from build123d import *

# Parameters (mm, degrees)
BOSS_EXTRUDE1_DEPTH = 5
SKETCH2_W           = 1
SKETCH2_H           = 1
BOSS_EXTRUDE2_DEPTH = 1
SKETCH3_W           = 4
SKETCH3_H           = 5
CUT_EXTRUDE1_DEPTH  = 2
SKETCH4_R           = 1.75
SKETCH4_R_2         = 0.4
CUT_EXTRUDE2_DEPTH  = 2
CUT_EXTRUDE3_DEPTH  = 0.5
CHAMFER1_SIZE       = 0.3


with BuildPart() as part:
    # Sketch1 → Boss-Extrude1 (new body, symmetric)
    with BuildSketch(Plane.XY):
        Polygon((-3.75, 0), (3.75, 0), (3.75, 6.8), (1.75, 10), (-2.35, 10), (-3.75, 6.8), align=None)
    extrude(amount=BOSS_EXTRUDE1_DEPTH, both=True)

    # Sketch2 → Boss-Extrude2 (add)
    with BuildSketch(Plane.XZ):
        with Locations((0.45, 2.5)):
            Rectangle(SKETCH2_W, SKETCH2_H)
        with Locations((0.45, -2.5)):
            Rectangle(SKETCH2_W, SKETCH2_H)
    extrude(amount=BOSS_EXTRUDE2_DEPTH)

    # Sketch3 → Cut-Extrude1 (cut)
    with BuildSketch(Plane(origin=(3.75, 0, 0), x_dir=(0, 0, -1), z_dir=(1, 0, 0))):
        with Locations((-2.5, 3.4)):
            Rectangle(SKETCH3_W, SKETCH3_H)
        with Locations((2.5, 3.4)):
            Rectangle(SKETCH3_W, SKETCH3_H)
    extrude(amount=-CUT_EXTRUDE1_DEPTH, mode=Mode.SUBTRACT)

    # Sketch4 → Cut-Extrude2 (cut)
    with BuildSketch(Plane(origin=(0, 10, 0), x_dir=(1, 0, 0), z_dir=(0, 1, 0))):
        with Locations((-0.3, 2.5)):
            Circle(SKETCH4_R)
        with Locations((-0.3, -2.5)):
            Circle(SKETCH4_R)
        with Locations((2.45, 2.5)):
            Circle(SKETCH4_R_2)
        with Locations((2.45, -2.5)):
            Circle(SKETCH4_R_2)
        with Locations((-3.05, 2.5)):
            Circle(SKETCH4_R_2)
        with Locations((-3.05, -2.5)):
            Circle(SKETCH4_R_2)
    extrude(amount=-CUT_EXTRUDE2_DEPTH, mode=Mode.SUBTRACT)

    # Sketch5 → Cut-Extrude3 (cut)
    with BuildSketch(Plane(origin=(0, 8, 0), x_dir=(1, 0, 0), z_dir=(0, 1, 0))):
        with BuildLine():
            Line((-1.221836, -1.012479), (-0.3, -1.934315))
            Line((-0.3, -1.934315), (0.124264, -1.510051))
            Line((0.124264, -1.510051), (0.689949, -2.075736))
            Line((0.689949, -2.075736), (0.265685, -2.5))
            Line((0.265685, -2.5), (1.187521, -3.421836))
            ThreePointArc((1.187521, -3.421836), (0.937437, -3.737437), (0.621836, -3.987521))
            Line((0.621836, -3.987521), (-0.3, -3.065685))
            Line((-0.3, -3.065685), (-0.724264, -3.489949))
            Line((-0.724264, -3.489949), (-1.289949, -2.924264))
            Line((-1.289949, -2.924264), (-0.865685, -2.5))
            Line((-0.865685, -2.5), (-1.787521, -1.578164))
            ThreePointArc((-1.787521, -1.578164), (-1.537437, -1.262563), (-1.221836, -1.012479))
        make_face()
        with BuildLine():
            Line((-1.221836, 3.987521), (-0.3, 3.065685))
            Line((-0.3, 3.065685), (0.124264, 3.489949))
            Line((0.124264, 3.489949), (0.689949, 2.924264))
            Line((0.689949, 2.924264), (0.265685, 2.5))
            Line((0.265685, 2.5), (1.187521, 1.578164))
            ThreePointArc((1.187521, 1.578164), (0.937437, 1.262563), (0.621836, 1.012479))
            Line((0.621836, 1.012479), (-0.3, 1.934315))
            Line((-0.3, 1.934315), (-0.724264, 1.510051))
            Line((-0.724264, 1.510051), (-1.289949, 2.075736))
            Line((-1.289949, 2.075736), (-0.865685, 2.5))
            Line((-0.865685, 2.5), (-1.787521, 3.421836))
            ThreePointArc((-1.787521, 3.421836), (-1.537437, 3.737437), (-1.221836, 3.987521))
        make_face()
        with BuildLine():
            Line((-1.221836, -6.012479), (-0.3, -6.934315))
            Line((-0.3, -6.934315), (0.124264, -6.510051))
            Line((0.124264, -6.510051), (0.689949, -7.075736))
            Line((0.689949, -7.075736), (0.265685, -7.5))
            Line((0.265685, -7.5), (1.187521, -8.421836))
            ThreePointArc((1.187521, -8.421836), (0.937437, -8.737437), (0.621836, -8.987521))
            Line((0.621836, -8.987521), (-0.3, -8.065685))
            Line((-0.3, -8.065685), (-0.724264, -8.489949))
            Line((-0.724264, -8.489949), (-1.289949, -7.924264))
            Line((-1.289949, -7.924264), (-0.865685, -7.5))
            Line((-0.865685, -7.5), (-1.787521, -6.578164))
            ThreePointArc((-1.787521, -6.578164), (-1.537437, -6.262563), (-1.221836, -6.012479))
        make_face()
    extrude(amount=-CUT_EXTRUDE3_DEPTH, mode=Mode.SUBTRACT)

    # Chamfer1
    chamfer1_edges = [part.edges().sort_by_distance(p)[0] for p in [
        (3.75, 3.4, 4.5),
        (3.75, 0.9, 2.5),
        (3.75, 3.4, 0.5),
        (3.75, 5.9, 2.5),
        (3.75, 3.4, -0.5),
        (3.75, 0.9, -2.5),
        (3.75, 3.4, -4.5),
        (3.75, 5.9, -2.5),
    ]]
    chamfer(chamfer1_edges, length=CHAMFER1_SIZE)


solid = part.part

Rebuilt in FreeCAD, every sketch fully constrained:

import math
import FreeCAD as App
import Part
import Sketcher
from FreeCAD import Vector
Q = App.Units.Quantity


def edges_at(feature, points):
    """Names of the edges that pass closest to the given points."""
    edges = feature.Shape.Edges
    near = lambda p: min(range(len(edges)), key=lambda i: edges[i].distToShape(Part.Vertex(*p))[0])
    return sorted({f"Edge{near(p) + 1}" for p in points})


def add_polygon(sketch, points):
    """Adds a closed chain of lines whose ends are joined by coincident constraints."""
    first, n = sketch.GeometryCount, len(points)
    for a, b in zip(points, points[1:] + points[:1]):
        sketch.addGeometry(Part.LineSegment(App.Vector(*a, 0), App.Vector(*b, 0)), False)
    for i in range(n):
        sketch.addConstraint(Sketcher.Constraint("Coincident", first + i, 2, first + (i + 1) % n, 1))

doc = App.newDocument("Part")
params = doc.addObject("Spreadsheet::Sheet", "Params")
for row, (alias, value) in enumerate([
    ("sketch1_width", "7.5 mm"),
    ("sketch1_width2", "4.1 mm"),
    ("sketch1_height", "6.8 mm"),
    ("pad1_length", "10 mm"),
    ("sketch2_width", "1 mm"),
    ("pad2_length", "1 mm"),
    ("sketch3_width", "5 mm"),
    ("sketch3_height", "4 mm"),
    ("pocket1_length", "2 mm"),
    ("sketch4_diameter", "3.5 mm"),
    ("sketch4_diameter2", "0.8 mm"),
    ("pocket2_length", "2 mm"),
    ("sketch5_length", "0.6 mm"),
    ("sketch5_length2", "0.799999 mm"),
    ("pocket3_length", "0.5 mm"),
    ("chamfer_size", "0.3 mm"),
], start=1):
    params.set(f"A{row}", alias)
    params.set(f"B{row}", "=" + value)
    params.setAlias(f"B{row}", alias)

body = doc.addObject("PartDesign::Body", "Body")

# Sketch on XY plane
sketch1 = body.newObject("Sketcher::SketchObject", "Sketch")
sketch1.AttachmentSupport = (doc.getObject("XY_Plane"), [""])
sketch1.MapMode = "FlatFace"
add_polygon(sketch1, [(-3.8, 0), (3.8, 0), (3.8, 6.8), (1.8, 10), (-2.4, 10), (-3.8, 6.8)])  # lines 0-5
sketch1.addConstraint([
    Sketcher.Constraint("Horizontal", 0),
    Sketcher.Constraint("Vertical", 1),
    Sketcher.Constraint("Horizontal", 3),
    Sketcher.Constraint("Vertical", 5),
    Sketcher.Constraint("Symmetric", 0, 2, 5, 2, -1, 1),
    Sketcher.Constraint("Horizontal", 1, 2, 4, 2),
    Sketcher.Constraint("DistanceX", 0, 1, 0, 2, Q("7.5 mm")),
    Sketcher.Constraint("DistanceX", 3, 2, 3, 1, Q("4.1 mm")),
    Sketcher.Constraint("DistanceY", 1, 1, 1, 2, Q("6.8 mm")),
    Sketcher.Constraint("DistanceY", -1, 1, 2, 2, Q("10 mm")),
    Sketcher.Constraint("DistanceX", 2, 2, 1, 2, Q("2 mm")),
])
sketch1.setExpression("Constraints[12]", "Params.sketch1_width")
sketch1.setExpression("Constraints[13]", "Params.sketch1_width2")
sketch1.setExpression("Constraints[14]", "Params.sketch1_height")
pad1 = body.newObject("PartDesign::Pad", "Pad")
pad1.Profile = sketch1
pad1.setExpression("Length", "Params.pad1_length")
pad1.Midplane = True

# Sketch on XZ plane
sketch2 = body.newObject("Sketcher::SketchObject", "Sketch001")
sketch2.AttachmentSupport = (doc.getObject("XZ_Plane"), [""])
sketch2.MapMode = "FlatFace"
add_polygon(sketch2, [(-0.1, 3), (-0.1, 2), (0.9, 2), (0.9, 3)])  # lines 0-3
add_polygon(sketch2, [(-0.1, -2), (-0.1, -3), (0.9, -3), (0.9, -2)])  # lines 4-7
sketch2.addConstraint([
    Sketcher.Constraint("Vertical", 0),
    Sketcher.Constraint("Horizontal", 1),
    Sketcher.Constraint("Vertical", 2),
    Sketcher.Constraint("Horizontal", 3),
    Sketcher.Constraint("Vertical", 4),
    Sketcher.Constraint("Horizontal", 5),
    Sketcher.Constraint("Vertical", 6),
    Sketcher.Constraint("Horizontal", 7),
    Sketcher.Constraint("Symmetric", 3, 2, 4, 2, -1),
    Sketcher.Constraint("Symmetric", 1, 2, 6, 2, -1),
    Sketcher.Constraint("Equal", 7, 0),
    Sketcher.Constraint("DistanceX", 1, 1, 1, 2, Q("1 mm")),
    Sketcher.Constraint("DistanceY", -1, 1, 0, 2, Q("2 mm")),
    Sketcher.Constraint("DistanceX", 0, 2, -1, 1, Q("0.05 mm")),
])
sketch2.setExpression("Constraints[19]", "Params.sketch2_width")
pad2 = body.newObject("PartDesign::Pad", "Pad001")
pad2.Profile = sketch2
pad2.setExpression("Length", "Params.pad2_length")

# Sketch on YZ plane
sketch3 = body.newObject("Sketcher::SketchObject", "Sketch002")
sketch3.AttachmentSupport = (doc.getObject("YZ_Plane"), [""])
sketch3.MapMode = "FlatFace"
sketch3.AttachmentOffset = App.Placement(Vector(0, 0, 3.75), App.Rotation())
add_polygon(sketch3, [(5.9, 4.5), (0.9, 4.5), (0.9, 0.5), (5.9, 0.5)])  # lines 0-3
add_polygon(sketch3, [(5.9, -0.5), (0.9, -0.5), (0.9, -4.5), (5.9, -4.5)])  # lines 4-7
sketch3.addConstraint([
    Sketcher.Constraint("Horizontal", 0),
    Sketcher.Constraint("Vertical", 1),
    Sketcher.Constraint("Horizontal", 2),
    Sketcher.Constraint("Vertical", 3),
    Sketcher.Constraint("Horizontal", 4),
    Sketcher.Constraint("Vertical", 5),
    Sketcher.Constraint("Horizontal", 6),
    Sketcher.Constraint("Vertical", 7),
    Sketcher.Constraint("Symmetric", 1, 2, 4, 2, -1),
    Sketcher.Constraint("Symmetric", 3, 2, 6, 2, -1),
    Sketcher.Constraint("DistanceX", 0, 2, 0, 1, Q("5 mm")),
    Sketcher.Constraint("DistanceY", 1, 2, 1, 1, Q("4 mm")),
    Sketcher.Constraint("DistanceY", 4, 2, 1, 2, Q("1 mm")),
    Sketcher.Constraint("DistanceX", -1, 1, 0, 2, Q("0.9 mm")),
])
sketch3.setExpression("Constraints[18]", "Params.sketch3_width")
sketch3.setExpression("Constraints[19]", "Params.sketch3_height")
pocket1 = body.newObject("PartDesign::Pocket", "Pocket")
pocket1.Profile = sketch3
pocket1.setExpression("Length", "Params.pocket1_length")

# Sketch on XZ plane
sketch4 = body.newObject("Sketcher::SketchObject", "Sketch003")
sketch4.AttachmentSupport = (doc.getObject("XZ_Plane"), [""])
sketch4.MapMode = "FlatFace"
sketch4.AttachmentOffset = App.Placement(Vector(0, 0, -10), App.Rotation())
sketch4.addGeometry([
    Part.Circle(Vector(-0.3, -2.5, 0), Vector(0, 0, 1), 1.75),  # 0
    Part.Circle(Vector(-0.3, 2.5, 0), Vector(0, 0, 1), 1.75),  # 1
    Part.Circle(Vector(2.45, -2.5, 0), Vector(0, 0, 1), 0.4),  # 2
    Part.Circle(Vector(2.45, 2.5, 0), Vector(0, 0, 1), 0.4),  # 3
    Part.Circle(Vector(-3.05, -2.5, 0), Vector(0, 0, 1), 0.4),  # 4
    Part.Circle(Vector(-3.05, 2.5, 0), Vector(0, 0, 1), 0.4),  # 5
], False)
sketch4.addConstraint([
    Sketcher.Constraint("Equal", 0, 1),
    Sketcher.Constraint("Equal", 2, 3),
    Sketcher.Constraint("Equal", 3, 4),
    Sketcher.Constraint("Equal", 4, 5),
    Sketcher.Constraint("Symmetric", 0, 3, 1, 3, -1),
    Sketcher.Constraint("Symmetric", 2, 3, 3, 3, -1),
    Sketcher.Constraint("Symmetric", 4, 3, 5, 3, -1),
    Sketcher.Constraint("Horizontal", 0, 3, 2, 3),
    Sketcher.Constraint("Horizontal", 2, 3, 4, 3),
    Sketcher.Constraint("Diameter", 0, Q("3.5 mm")),
    Sketcher.Constraint("Diameter", 2, Q("0.8 mm")),
    Sketcher.Constraint("DistanceY", 0, 3, 1, 3, Q("5 mm")),
    Sketcher.Constraint("DistanceX", 0, 3, -1, 1, Q("0.3 mm")),
    Sketcher.Constraint("DistanceX", 4, 3, 2, 3, Q("5.5 mm")),
    Sketcher.Constraint("DistanceX", -1, 1, 2, 3, Q("2.45 mm")),
])
sketch4.setExpression("Constraints[9]", "Params.sketch4_diameter")
sketch4.setExpression("Constraints[10]", "Params.sketch4_diameter2")
pocket2 = body.newObject("PartDesign::Pocket", "Pocket001")
pocket2.Profile = sketch4
pocket2.setExpression("Length", "Params.pocket2_length")
pocket2.Reversed = True

# Sketch on XZ plane
sketch5 = body.newObject("Sketcher::SketchObject", "Sketch004")
sketch5.AttachmentSupport = (doc.getObject("XZ_Plane"), [""])
sketch5.MapMode = "FlatFace"
sketch5.AttachmentOffset = App.Placement(Vector(0, 0, -8), App.Rotation())
sketch5.addGeometry([
    Part.LineSegment(Vector(-0.3, 1.9, 0), Vector(-1.2, 1, 0)),  # 0
    Part.ArcOfCircle(Part.Circle(Vector(-0.3, 2.5, 0), Vector(0, 0, 1), 1.7), math.radians(-148), math.radians(-122)),  # 1
    Part.LineSegment(Vector(-1.8, 1.6, 0), Vector(-0.9, 2.5, 0)),  # 2
    Part.LineSegment(Vector(-0.9, 2.5, 0), Vector(-1.3, 2.9, 0)),  # 3
    Part.LineSegment(Vector(-1.3, 2.9, 0), Vector(-0.7, 3.5, 0)),  # 4
    Part.LineSegment(Vector(-0.7, 3.5, 0), Vector(-0.3, 3.1, 0)),  # 5
    Part.LineSegment(Vector(-0.3, 3.1, 0), Vector(0.6, 4, 0)),  # 6
    Part.ArcOfCircle(Part.Circle(Vector(-0.3, 2.5, 0), Vector(0, 0, 1), 1.7), math.radians(32), math.radians(58)),  # 7
    Part.LineSegment(Vector(1.2, 3.4, 0), Vector(0.3, 2.5, 0)),  # 8
    Part.LineSegment(Vector(0.3, 2.5, 0), Vector(0.7, 2.1, 0)),  # 9
    Part.LineSegment(Vector(0.7, 2.1, 0), Vector(0.1, 1.5, 0)),  # 10
    Part.LineSegment(Vector(0.1, 1.5, 0), Vector(-0.3, 1.9, 0)),  # 11
    Part.LineSegment(Vector(-0.3, -3.1, 0), Vector(-1.2, -4, 0)),  # 12
    Part.ArcOfCircle(Part.Circle(Vector(-0.3, -2.5, 0), Vector(0, 0, 1), 1.7), math.radians(-148), math.radians(-122)),  # 13
    Part.LineSegment(Vector(-1.8, -3.4, 0), Vector(-0.9, -2.5, 0)),  # 14
    Part.LineSegment(Vector(-0.9, -2.5, 0), Vector(-1.3, -2.1, 0)),  # 15
    Part.LineSegment(Vector(-1.3, -2.1, 0), Vector(-0.7, -1.5, 0)),  # 16
    Part.LineSegment(Vector(-0.7, -1.5, 0), Vector(-0.3, -1.9, 0)),  # 17
    Part.LineSegment(Vector(-0.3, -1.9, 0), Vector(0.6, -1, 0)),  # 18
    Part.ArcOfCircle(Part.Circle(Vector(-0.3, -2.5, 0), Vector(0, 0, 1), 1.7), math.radians(32), math.radians(58)),  # 19
    Part.LineSegment(Vector(1.2, -1.6, 0), Vector(0.3, -2.5, 0)),  # 20
    Part.LineSegment(Vector(0.3, -2.5, 0), Vector(0.7, -2.9, 0)),  # 21
    Part.LineSegment(Vector(0.7, -2.9, 0), Vector(0.1, -3.5, 0)),  # 22
    Part.LineSegment(Vector(0.1, -3.5, 0), Vector(-0.3, -3.1, 0)),  # 23
    Part.LineSegment(Vector(-0.3, 6.9, 0), Vector(-1.2, 6, 0)),  # 24
    Part.ArcOfCircle(Part.Circle(Vector(-0.3, 7.5, 0), Vector(0, 0, 1), 1.7), math.radians(-148), math.radians(-122)),  # 25
    Part.LineSegment(Vector(-1.8, 6.6, 0), Vector(-0.9, 7.5, 0)),  # 26
    Part.LineSegment(Vector(-0.9, 7.5, 0), Vector(-1.3, 7.9, 0)),  # 27
    Part.LineSegment(Vector(-1.3, 7.9, 0), Vector(-0.7, 8.5, 0)),  # 28
    Part.LineSegment(Vector(-0.7, 8.5, 0), Vector(-0.3, 8.1, 0)),  # 29
    Part.LineSegment(Vector(-0.3, 8.1, 0), Vector(0.6, 9, 0)),  # 30
    Part.ArcOfCircle(Part.Circle(Vector(-0.3, 7.5, 0), Vector(0, 0, 1), 1.7), math.radians(32), math.radians(58)),  # 31
    Part.LineSegment(Vector(1.2, 8.4, 0), Vector(0.3, 7.5, 0)),  # 32
    Part.LineSegment(Vector(0.3, 7.5, 0), Vector(0.7, 7.1, 0)),  # 33
    Part.LineSegment(Vector(0.7, 7.1, 0), Vector(0.1, 6.5, 0)),  # 34
    Part.LineSegment(Vector(0.1, 6.5, 0), Vector(-0.3, 6.9, 0)),  # 35
], False)
sketch5.addConstraint([
    Sketcher.Constraint("Coincident", 0, 2, 1, 2),
    Sketcher.Constraint("Coincident", 1, 1, 2, 1),
    Sketcher.Constraint("Coincident", 2, 2, 3, 1),
    Sketcher.Constraint("Coincident", 3, 2, 4, 1),
    Sketcher.Constraint("Coincident", 4, 2, 5, 1),
    Sketcher.Constraint("Coincident", 5, 2, 6, 1),
    Sketcher.Constraint("Coincident", 6, 2, 7, 2),
    Sketcher.Constraint("Coincident", 7, 1, 8, 1),
    Sketcher.Constraint("Coincident", 8, 2, 9, 1),
    Sketcher.Constraint("Coincident", 9, 2, 10, 1),
    Sketcher.Constraint("Coincident", 10, 2, 11, 1),
    Sketcher.Constraint("Coincident", 11, 2, 0, 1),
    Sketcher.Constraint("Coincident", 12, 2, 13, 2),
    Sketcher.Constraint("Coincident", 13, 1, 14, 1),
    Sketcher.Constraint("Coincident", 14, 2, 15, 1),
    Sketcher.Constraint("Coincident", 15, 2, 16, 1),
    Sketcher.Constraint("Coincident", 16, 2, 17, 1),
    Sketcher.Constraint("Coincident", 17, 2, 18, 1),
    Sketcher.Constraint("Coincident", 18, 2, 19, 2),
    Sketcher.Constraint("Coincident", 19, 1, 20, 1),
    Sketcher.Constraint("Coincident", 20, 2, 21, 1),
    Sketcher.Constraint("Coincident", 21, 2, 22, 1),
    Sketcher.Constraint("Coincident", 22, 2, 23, 1),
    Sketcher.Constraint("Coincident", 23, 2, 12, 1),
    Sketcher.Constraint("Coincident", 24, 2, 25, 2),
    Sketcher.Constraint("Coincident", 25, 1, 26, 1),
    Sketcher.Constraint("Coincident", 26, 2, 27, 1),
    Sketcher.Constraint("Coincident", 27, 2, 28, 1),
    Sketcher.Constraint("Coincident", 28, 2, 29, 1),
    Sketcher.Constraint("Coincident", 29, 2, 30, 1),
    Sketcher.Constraint("Coincident", 30, 2, 31, 2),
    Sketcher.Constraint("Coincident", 31, 1, 32, 1),
    Sketcher.Constraint("Coincident", 32, 2, 33, 1),
    Sketcher.Constraint("Coincident", 33, 2, 34, 1),
    Sketcher.Constraint("Coincident", 34, 2, 35, 1),
    Sketcher.Constraint("Coincident", 35, 2, 24, 1),
    Sketcher.Constraint("Coincident", 7, 3, 1, 3),
    Sketcher.Constraint("Coincident", 19, 3, 13, 3),
    Sketcher.Constraint("Coincident", 31, 3, 25, 3),
    Sketcher.Constraint("Equal", 1, 7),
    Sketcher.Constraint("Equal", 7, 13),
    Sketcher.Constraint("Equal", 13, 19),
    Sketcher.Constraint("Equal", 19, 25),
    Sketcher.Constraint("Equal", 25, 31),
    Sketcher.Constraint("Symmetric", 1, 3, 13, 3, -1),
    Sketcher.Constraint("Symmetric", 2, 2, 14, 2, -1),
    Sketcher.Constraint("Symmetric", 11, 2, 17, 2, -1),
    Sketcher.Constraint("Symmetric", 8, 2, 20, 2, -1),
    Sketcher.Constraint("Symmetric", 5, 2, 23, 2, -1),
    Sketcher.Constraint("Parallel", 0, 2),
    Sketcher.Constraint("Perpendicular", 2, 3),
    Sketcher.Constraint("Perpendicular", 3, 4),
    Sketcher.Constraint("Perpendicular", 4, 5),
    Sketcher.Constraint("Perpendicular", 5, 6),
    Sketcher.Constraint("Parallel", 6, 8),
    Sketcher.Constraint("Perpendicular", 8, 9),
    Sketcher.Constraint("Perpendicular", 9, 10),
    Sketcher.Constraint("Perpendicular", 10, 11),
    Sketcher.Constraint("Perpendicular", 11, 12),
    Sketcher.Constraint("Parallel", 12, 14),
    Sketcher.Constraint("Perpendicular", 14, 15),
    Sketcher.Constraint("Perpendicular", 15, 16),
    Sketcher.Constraint("Perpendicular", 16, 17),
    Sketcher.Constraint("Perpendicular", 17, 18),
    Sketcher.Constraint("Parallel", 18, 20),
    Sketcher.Constraint("Perpendicular", 20, 21),
    Sketcher.Constraint("Perpendicular", 21, 22),
    Sketcher.Constraint("Perpendicular", 22, 23),
    Sketcher.Constraint("Perpendicular", 23, 24),
    Sketcher.Constraint("Parallel", 24, 26),
    Sketcher.Constraint("Perpendicular", 26, 27),
    Sketcher.Constraint("Perpendicular", 27, 28),
    Sketcher.Constraint("Perpendicular", 28, 29),
    Sketcher.Constraint("Perpendicular", 29, 30),
    Sketcher.Constraint("Parallel", 30, 32),
    Sketcher.Constraint("Perpendicular", 32, 33),
    Sketcher.Constraint("Perpendicular", 33, 34),
    Sketcher.Constraint("Perpendicular", 34, 35),
    Sketcher.Constraint("Horizontal", 2, 2, 8, 2),
    Sketcher.Constraint("Horizontal", 26, 2, 32, 2),
    Sketcher.Constraint("Vertical", 13, 3, 25, 3),
    Sketcher.Constraint("Vertical", 5, 2, 11, 2),
    Sketcher.Constraint("Vertical", 0, 2, 12, 2),
    Sketcher.Constraint("Vertical", 1, 1, 13, 1),
    Sketcher.Constraint("Vertical", 3, 2, 15, 2),
    Sketcher.Constraint("Vertical", 9, 2, 21, 2),
    Sketcher.Constraint("Vertical", 12, 2, 24, 2),
    Sketcher.Constraint("Vertical", 13, 1, 25, 1),
    Sketcher.Constraint("Vertical", 14, 2, 26, 2),
    Sketcher.Constraint("Vertical", 15, 2, 27, 2),
    Sketcher.Constraint("Vertical", 16, 2, 28, 2),
    Sketcher.Constraint("Vertical", 23, 2, 29, 2),
    Sketcher.Constraint("Vertical", 19, 1, 31, 1),
    Sketcher.Constraint("Vertical", 21, 2, 33, 2),
    Sketcher.Constraint("Vertical", 22, 2, 34, 2),
    Sketcher.Constraint("Equal", 0, 2),
    Sketcher.Constraint("Equal", 3, 5),
    Sketcher.Constraint("Equal", 2, 6),
    Sketcher.Constraint("Equal", 6, 8),
    Sketcher.Constraint("Equal", 5, 9),
    Sketcher.Constraint("DistanceY", 13, 3, 1, 3, Q("5 mm")),
    Sketcher.Constraint("DistanceY", 1, 3, 25, 3, Q("5 mm")),
    Sketcher.Constraint("Distance", 3, Q("0.6 mm")),
    Sketcher.Constraint("Distance", 4, Q("0.799999 mm")),
    Sketcher.Constraint("DistanceX", 5, 2, -1, 1, Q("0.3 mm")),
    Sketcher.Constraint("Radius", 1, Q("1.749997 mm")),
])
sketch5.setExpression("Constraints[102]", "Params.sketch5_length")
sketch5.setExpression("Constraints[103]", "Params.sketch5_length2")
pocket3 = body.newObject("PartDesign::Pocket", "Pocket002")
pocket3.Profile = sketch5
pocket3.setExpression("Length", "Params.pocket3_length")
pocket3.Reversed = True
doc.recompute()

chamfer = body.newObject("PartDesign::Chamfer", "Chamfer")
chamfer.Base = (pocket3, edges_at(pocket3, [
    (3.75, 3.4, 4.5),
    (3.75, 0.9, 2.5),
    (3.75, 3.4, 0.5),
    (3.75, 5.9, 2.5),
    (3.75, 3.4, -0.5),
    (3.75, 0.9, -2.5),
    (3.75, 3.4, -4.5),
    (3.75, 5.9, -2.5),
]))
chamfer.setExpression("Size", "Params.chamfer_size")

doc.recompute()
